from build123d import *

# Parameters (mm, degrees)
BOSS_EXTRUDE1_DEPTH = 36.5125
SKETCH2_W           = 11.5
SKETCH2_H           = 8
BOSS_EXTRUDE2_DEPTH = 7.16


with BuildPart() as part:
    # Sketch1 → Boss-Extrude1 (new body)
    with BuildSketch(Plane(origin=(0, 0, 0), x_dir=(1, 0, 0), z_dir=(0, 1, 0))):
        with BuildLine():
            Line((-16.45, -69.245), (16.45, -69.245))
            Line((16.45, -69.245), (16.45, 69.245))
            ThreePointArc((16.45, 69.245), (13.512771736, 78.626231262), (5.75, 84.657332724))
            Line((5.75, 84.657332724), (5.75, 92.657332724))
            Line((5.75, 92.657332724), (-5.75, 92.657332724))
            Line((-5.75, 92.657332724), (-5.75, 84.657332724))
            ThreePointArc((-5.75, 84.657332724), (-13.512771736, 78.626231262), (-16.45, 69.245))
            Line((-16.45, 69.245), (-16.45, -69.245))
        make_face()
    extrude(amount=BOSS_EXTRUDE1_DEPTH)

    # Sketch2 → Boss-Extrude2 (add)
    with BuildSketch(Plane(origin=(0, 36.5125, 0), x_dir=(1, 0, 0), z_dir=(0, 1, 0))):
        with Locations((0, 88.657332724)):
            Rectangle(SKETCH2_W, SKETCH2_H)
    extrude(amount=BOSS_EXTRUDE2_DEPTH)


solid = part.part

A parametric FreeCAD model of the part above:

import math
import FreeCAD as App
import Part
import Sketcher
from FreeCAD import Vector
Q = App.Units.Quantity


def add_polygon(sketch, points):
    """Adds a closed chain of lines whose ends are joined by coincident constraints."""
    first, n = sketch.GeometryCount, len(points)
    for a, b in zip(points, points[1:] + points[:1]):
        sketch.addGeometry(Part.LineSegment(App.Vector(*a, 0), App.Vector(*b, 0)), False)
    for i in range(n):
        sketch.addConstraint(Sketcher.Constraint("Coincident", first + i, 2, first + (i + 1) % n, 1))

doc = App.newDocument("Part")
body = doc.addObject("PartDesign::Body", "Body")

sketch1 = body.newObject("Sketcher::SketchObject", "Sketch")
sketch1.AttachmentSupport = (doc.getObject("XZ_Plane"), [""])
sketch1.MapMode = "FlatFace"
sketch1.addGeometry(Part.LineSegment(Vector(-16.45, 69.245, 0), Vector(16.45, 69.245, 0)), False)
sketch1.addGeometry(Part.LineSegment(Vector(16.45, 69.245, 0), Vector(16.45, -69.245, 0)), False)
sketch1.addGeometry(Part.ArcOfCircle(Part.Circle(Vector(0, -69.245, 0), Vector(0, 0, 1), 16.45), math.radians(-69.540569), math.radians(0)), False)
sketch1.addGeometry(Part.LineSegment(Vector(5.75, -84.657333, 0), Vector(5.75, -92.657333, 0)), False)
sketch1.addGeometry(Part.LineSegment(Vector(5.75, -92.657333, 0), Vector(-5.75, -92.657333, 0)), False)
sketch1.addGeometry(Part.LineSegment(Vector(-5.75, -92.657333, 0), Vector(-5.75, -84.657333, 0)), False)
sketch1.addGeometry(Part.ArcOfCircle(Part.Circle(Vector(0, -69.245, 0), Vector(0, 0, 1), 16.45), math.radians(-180), math.radians(-110.459431)), False)
sketch1.addGeometry(Part.LineSegment(Vector(-16.45, -69.245, 0), Vector(-16.45, 69.245, 0)), False)
sketch1.addConstraint(Sketcher.Constraint("Coincident", 0, 2, 1, 1))
sketch1.addConstraint(Sketcher.Constraint("Tangent", 1, 2, 2, 2))
sketch1.addConstraint(Sketcher.Constraint("Coincident", 2, 1, 3, 1))
sketch1.addConstraint(Sketcher.Constraint("Coincident", 3, 2, 4, 1))
sketch1.addConstraint(Sketcher.Constraint("Coincident", 4, 2, 5, 1))
sketch1.addConstraint(Sketcher.Constraint("Coincident", 5, 2, 6, 2))
sketch1.addConstraint(Sketcher.Constraint("Tangent", 6, 1, 7, 1))
sketch1.addConstraint(Sketcher.Constraint("Coincident", 7, 2, 0, 1))
sketch1.addConstraint(Sketcher.Constraint("Horizontal", 0))
sketch1.addConstraint(Sketcher.Constraint("Vertical", 1))
sketch1.addConstraint(Sketcher.Constraint("Vertical", 3))
sketch1.addConstraint(Sketcher.Constraint("Horizontal", 4))
sketch1.addConstraint(Sketcher.Constraint("Vertical", 5))
sketch1.addConstraint(Sketcher.Constraint("Vertical", 7))
sketch1.addConstraint(Sketcher.Constraint("Coincident", 6, 3, 2, 3))
sketch1.addConstraint(Sketcher.Constraint("Equal", 2, 6))
sketch1.addConstraint(Sketcher.Constraint("Symmetric", 0, 2, 6, 1, -1, 1))
sketch1.addConstraint(Sketcher.Constraint("Horizontal", 2, 1, 5, 2))
sketch1.addConstraint(Sketcher.Constraint("DistanceY", 3, 2, 3, 1, Q("8 mm")))
sketch1.addConstraint(Sketcher.Constraint("Radius", 2, Q("16.45 mm")))
sketch1.addConstraint(Sketcher.Constraint("DistanceX", 4, 2, 4, 1, Q("11.5 mm")))
sketch1.addConstraint(Sketcher.Constraint("DistanceY", 1, 2, 1, 1, Q("138.49 mm")))
pad1 = body.newObject("PartDesign::Pad", "Pad")
pad1.Profile = sketch1
pad1.Length = 36.5125
pad1.Reversed = True

sketch2 = body.newObject("Sketcher::SketchObject", "Sketch001")
sketch2.AttachmentSupport = (doc.getObject("XZ_Plane"), [""])
sketch2.MapMode = "FlatFace"
sketch2.AttachmentOffset = App.Placement(Vector(0, 0, -36.5125), App.Rotation())
add_polygon(sketch2, [(-5.75, -92.657333), (-5.75, -84.657333), (5.75, -84.657333), (5.75, -92.657333)])
sketch2.addConstraint(Sketcher.Constraint("Vertical", 0))
sketch2.addConstraint(Sketcher.Constraint("Horizontal", 1))
sketch2.addConstraint(Sketcher.Constraint("Vertical", 2))
sketch2.addConstraint(Sketcher.Constraint("Horizontal", 3))
sketch2.addConstraint(Sketcher.Constraint("DistanceY", 0, 1, 0, 2, Q("8 mm")))
sketch2.addConstraint(Sketcher.Constraint("DistanceX", 1, 1, 1, 2, Q("11.5 mm")))
sketch2.addConstraint(Sketcher.Constraint("DistanceX", 0, 2, -1, 1, Q("5.75 mm")))
sketch2.addConstraint(Sketcher.Constraint("DistanceY", 0, 2, -1, 1, Q("84.657333 mm")))
pad2 = body.newObject("PartDesign::Pad", "Pad001")
pad2.Profile = sketch2
pad2.Length = 7.16
pad2.Reversed = True

doc.recompute()
